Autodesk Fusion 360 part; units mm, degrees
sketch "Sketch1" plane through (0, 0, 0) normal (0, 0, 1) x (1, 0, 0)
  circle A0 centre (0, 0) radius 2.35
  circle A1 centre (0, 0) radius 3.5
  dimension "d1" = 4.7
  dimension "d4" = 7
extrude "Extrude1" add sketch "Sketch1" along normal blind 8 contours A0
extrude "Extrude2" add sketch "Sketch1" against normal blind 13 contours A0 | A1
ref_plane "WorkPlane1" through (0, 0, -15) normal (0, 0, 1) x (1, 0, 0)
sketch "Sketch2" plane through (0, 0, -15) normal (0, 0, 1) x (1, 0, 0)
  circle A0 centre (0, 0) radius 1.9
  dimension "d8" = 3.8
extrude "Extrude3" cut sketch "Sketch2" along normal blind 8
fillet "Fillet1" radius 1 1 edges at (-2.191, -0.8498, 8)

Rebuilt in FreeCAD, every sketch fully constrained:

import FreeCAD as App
import Part
import Sketcher
from FreeCAD import Vector


def edges_at(feature, points):
    """Names of the edges that pass closest to the given points."""
    edges = feature.Shape.Edges
    near = lambda p: min(range(len(edges)), key=lambda i: edges[i].distToShape(Part.Vertex(*p))[0])
    return sorted({f"Edge{near(p) + 1}" for p in points})

doc = App.newDocument("Part")
body = doc.addObject("PartDesign::Body", "Body")

# Sketch on XY plane
sketch1 = body.newObject("Sketcher::SketchObject", "Sketch")
sketch1.AttachmentSupport = (doc.getObject("XY_Plane"), [""])
sketch1.MapMode = "FlatFace"
sketch1.addGeometry(Part.Circle(Vector(0, 0, 0), Vector(0, 0, 1), 2.35), False)
sketch1.addConstraint([
    Sketcher.Constraint("Coincident", 0, 3, -1, 1),
    Sketcher.Constraint("Diameter", 0, 4.7),
])
pad1 = body.newObject("PartDesign::Pad", "Pad")
pad1.Profile = sketch1
pad1.Length = 8

# Sketch on XY plane
sketch2 = body.newObject("Sketcher::SketchObject", "Sketch001")
sketch2.AttachmentSupport = (doc.getObject("XY_Plane"), [""])
sketch2.MapMode = "FlatFace"
sketch2.addGeometry(Part.Circle(Vector(0, 0, 0), Vector(0, 0, 1), 3.5), False)
sketch2.addConstraint([
    Sketcher.Constraint("Coincident", 0, 3, -1, 1),
    Sketcher.Constraint("Diameter", 0, 7.0),
])
pad2 = body.newObject("PartDesign::Pad", "Pad001")
pad2.Profile = sketch2
pad2.Length = 13
pad2.Reversed = True

# Sketch on XY plane
sketch3 = body.newObject("Sketcher::SketchObject", "Sketch002")
sketch3.AttachmentSupport = (doc.getObject("XY_Plane"), [""])
sketch3.MapMode = "FlatFace"
sketch3.AttachmentOffset = App.Placement(Vector(0, 0, -15), App.Rotation())
sketch3.addGeometry(Part.Circle(Vector(0, 0, 0), Vector(0, 0, 1), 1.9), False)
sketch3.addConstraint([
    Sketcher.Constraint("Coincident", 0, 3, -1, 1),
    Sketcher.Constraint("Diameter", 0, 3.8),
])
pocket1 = body.newObject("PartDesign::Pocket", "Pocket")
pocket1.Profile = sketch3
pocket1.Length = 8
pocket1.Reversed = True
doc.recompute()

fillet = body.newObject("PartDesign::Fillet", "Fillet")
fillet.Base = (pocket1, edges_at(pocket1, [(-2.191, -0.85, 8)]))
fillet.Radius = 1

doc.recompute()
